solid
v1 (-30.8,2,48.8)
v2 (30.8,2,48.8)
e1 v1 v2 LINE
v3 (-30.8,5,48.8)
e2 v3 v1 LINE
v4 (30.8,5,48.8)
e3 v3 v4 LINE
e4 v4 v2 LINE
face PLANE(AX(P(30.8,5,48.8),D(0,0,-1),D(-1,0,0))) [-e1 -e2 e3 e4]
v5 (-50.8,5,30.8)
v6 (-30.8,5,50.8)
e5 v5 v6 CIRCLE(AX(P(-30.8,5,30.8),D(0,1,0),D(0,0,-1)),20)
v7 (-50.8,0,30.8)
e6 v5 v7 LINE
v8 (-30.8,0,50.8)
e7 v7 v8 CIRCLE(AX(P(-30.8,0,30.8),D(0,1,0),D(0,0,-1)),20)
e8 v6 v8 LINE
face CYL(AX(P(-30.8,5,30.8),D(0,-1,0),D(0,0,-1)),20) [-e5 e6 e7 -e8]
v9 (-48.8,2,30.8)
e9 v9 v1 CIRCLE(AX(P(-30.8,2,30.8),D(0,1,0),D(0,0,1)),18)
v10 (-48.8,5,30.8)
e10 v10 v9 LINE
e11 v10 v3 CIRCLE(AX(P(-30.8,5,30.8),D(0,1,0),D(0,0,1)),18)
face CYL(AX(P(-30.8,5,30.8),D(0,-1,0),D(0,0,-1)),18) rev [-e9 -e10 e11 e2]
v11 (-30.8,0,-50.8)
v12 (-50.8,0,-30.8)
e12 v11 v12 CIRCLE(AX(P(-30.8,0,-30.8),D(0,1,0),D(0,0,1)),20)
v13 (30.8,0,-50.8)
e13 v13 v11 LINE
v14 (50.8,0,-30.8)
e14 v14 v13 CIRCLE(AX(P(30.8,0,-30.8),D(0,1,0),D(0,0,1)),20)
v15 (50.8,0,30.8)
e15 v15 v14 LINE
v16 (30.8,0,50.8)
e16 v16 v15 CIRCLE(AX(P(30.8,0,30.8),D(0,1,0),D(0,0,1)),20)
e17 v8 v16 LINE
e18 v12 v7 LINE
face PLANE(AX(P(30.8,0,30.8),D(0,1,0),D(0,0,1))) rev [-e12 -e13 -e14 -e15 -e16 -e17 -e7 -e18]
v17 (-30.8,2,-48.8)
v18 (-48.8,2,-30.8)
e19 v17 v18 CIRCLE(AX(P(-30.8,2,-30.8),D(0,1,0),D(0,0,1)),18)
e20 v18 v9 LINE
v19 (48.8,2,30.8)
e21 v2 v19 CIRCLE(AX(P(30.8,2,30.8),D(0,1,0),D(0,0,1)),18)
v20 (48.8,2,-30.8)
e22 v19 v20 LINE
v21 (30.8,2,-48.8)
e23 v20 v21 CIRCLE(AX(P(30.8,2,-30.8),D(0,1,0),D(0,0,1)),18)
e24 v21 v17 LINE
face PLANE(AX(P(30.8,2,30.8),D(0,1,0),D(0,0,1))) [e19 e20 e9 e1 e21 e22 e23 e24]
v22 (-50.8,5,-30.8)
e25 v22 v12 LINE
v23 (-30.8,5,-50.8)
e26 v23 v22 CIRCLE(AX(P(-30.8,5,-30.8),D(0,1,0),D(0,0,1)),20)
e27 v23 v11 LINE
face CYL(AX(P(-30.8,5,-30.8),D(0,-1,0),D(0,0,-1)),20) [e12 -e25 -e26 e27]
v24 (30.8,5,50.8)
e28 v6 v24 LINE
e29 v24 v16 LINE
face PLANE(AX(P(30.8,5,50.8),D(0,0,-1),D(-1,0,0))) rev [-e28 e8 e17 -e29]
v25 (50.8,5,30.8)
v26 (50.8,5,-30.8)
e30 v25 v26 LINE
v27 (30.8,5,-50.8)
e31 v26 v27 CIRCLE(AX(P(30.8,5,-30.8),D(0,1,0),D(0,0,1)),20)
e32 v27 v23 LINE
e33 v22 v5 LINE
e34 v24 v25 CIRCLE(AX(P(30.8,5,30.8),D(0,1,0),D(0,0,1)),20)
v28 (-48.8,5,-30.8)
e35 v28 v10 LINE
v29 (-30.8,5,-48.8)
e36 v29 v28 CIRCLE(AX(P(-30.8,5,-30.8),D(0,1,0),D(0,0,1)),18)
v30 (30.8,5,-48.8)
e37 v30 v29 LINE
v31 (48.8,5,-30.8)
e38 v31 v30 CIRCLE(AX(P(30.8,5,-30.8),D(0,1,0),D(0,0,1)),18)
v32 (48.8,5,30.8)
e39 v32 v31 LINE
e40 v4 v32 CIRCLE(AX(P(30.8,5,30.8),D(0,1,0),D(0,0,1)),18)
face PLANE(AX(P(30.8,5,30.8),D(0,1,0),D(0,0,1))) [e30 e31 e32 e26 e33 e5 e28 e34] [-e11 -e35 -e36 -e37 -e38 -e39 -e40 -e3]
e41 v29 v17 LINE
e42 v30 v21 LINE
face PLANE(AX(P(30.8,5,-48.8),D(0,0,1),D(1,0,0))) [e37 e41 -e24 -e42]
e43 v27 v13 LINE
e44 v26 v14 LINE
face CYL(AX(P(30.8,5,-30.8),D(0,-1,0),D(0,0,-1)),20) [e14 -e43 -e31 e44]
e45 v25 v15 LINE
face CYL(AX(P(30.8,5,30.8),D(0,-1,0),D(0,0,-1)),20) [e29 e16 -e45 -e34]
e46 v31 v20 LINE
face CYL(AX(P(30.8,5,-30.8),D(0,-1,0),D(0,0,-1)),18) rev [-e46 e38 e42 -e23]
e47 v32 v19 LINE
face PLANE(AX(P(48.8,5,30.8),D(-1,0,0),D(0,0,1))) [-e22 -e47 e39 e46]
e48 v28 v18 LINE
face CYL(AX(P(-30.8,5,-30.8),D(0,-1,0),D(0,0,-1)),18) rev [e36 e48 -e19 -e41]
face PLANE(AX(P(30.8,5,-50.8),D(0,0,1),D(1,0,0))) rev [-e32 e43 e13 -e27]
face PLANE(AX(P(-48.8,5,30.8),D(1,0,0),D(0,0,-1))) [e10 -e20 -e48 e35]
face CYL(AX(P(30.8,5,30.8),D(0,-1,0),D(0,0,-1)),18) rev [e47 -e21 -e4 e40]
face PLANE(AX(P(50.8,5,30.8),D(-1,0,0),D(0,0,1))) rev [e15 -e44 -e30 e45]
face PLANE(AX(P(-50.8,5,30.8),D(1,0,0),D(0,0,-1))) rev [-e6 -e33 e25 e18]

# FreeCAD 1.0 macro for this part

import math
import FreeCAD as App
import Part
import Sketcher

V = App.Vector


def faces_at(feature, points):
    """Names of the faces that lie closest to the given points."""
    faces = feature.Shape.Faces
    near = lambda p: min(range(len(faces)), key=lambda i: faces[i].distToShape(Part.Vertex(*p))[0])
    return sorted({f"Face{near(p) + 1}" for p in points})

doc = App.newDocument("Part")
body = doc.addObject("PartDesign::Body", "Body")

sketch1 = body.newObject("Sketcher::SketchObject", "Sketch")
sketch1.AttachmentSupport = (doc.getObject("XZ_Plane"), [""])
sketch1.MapMode = "FlatFace"
sketch1.addGeometry(Part.LineSegment(V(-31, 51, 0), V(31, 51, 0)), False)
sketch1.addGeometry(Part.ArcOfCircle(Part.Circle(V(31, 31, 0), V(0, 0, 1), 20), math.radians(0), math.radians(90)), False)
sketch1.addGeometry(Part.LineSegment(V(51, 31, 0), V(51, -31, 0)), False)
sketch1.addGeometry(Part.ArcOfCircle(Part.Circle(V(31, -31, 0), V(0, 0, 1), 20), math.radians(-90), math.radians(0)), False)
sketch1.addGeometry(Part.LineSegment(V(31, -51, 0), V(-31, -51, 0)), False)
sketch1.addGeometry(Part.ArcOfCircle(Part.Circle(V(-31, -31, 0), V(0, 0, 1), 20), math.radians(180), math.radians(270)), False)
sketch1.addGeometry(Part.LineSegment(V(-51, -31, 0), V(-51, 31, 0)), False)
sketch1.addGeometry(Part.ArcOfCircle(Part.Circle(V(-31, 31, 0), V(0, 0, 1), 20), math.radians(90), math.radians(180)), False)
sketch1.addConstraint(Sketcher.Constraint("Tangent", 0, 2, 1, 2))
sketch1.addConstraint(Sketcher.Constraint("Tangent", 1, 1, 2, 1))
sketch1.addConstraint(Sketcher.Constraint("Tangent", 2, 2, 3, 2))
sketch1.addConstraint(Sketcher.Constraint("Tangent", 3, 1, 4, 1))
sketch1.addConstraint(Sketcher.Constraint("Tangent", 4, 2, 5, 2))
sketch1.addConstraint(Sketcher.Constraint("Tangent", 5, 1, 6, 1))
sketch1.addConstraint(Sketcher.Constraint("Tangent", 6, 2, 7, 2))
sketch1.addConstraint(Sketcher.Constraint("Tangent", 7, 1, 0, 1))
sketch1.addConstraint(Sketcher.Constraint("Horizontal", 0))
sketch1.addConstraint(Sketcher.Constraint("Vertical", 2))
sketch1.addConstraint(Sketcher.Constraint("Horizontal", 4))
sketch1.addConstraint(Sketcher.Constraint("Vertical", 6))
sketch1.addConstraint(Sketcher.Constraint("Equal", 1, 3))
sketch1.addConstraint(Sketcher.Constraint("Equal", 3, 5))
sketch1.addConstraint(Sketcher.Constraint("Equal", 5, 7))
sketch1.addConstraint(Sketcher.Constraint("Symmetric", 1, 3, 5, 3, -1, 1))
sketch1.addConstraint(Sketcher.Constraint("Equal", 4, 2))
sketch1.addConstraint(Sketcher.Constraint("Radius", 1, 20.0))
sketch1.addConstraint(Sketcher.Constraint("DistanceX", 0, 1, 0, 2, 61.6))
pad1 = body.newObject("PartDesign::Pad", "Pad")
pad1.Profile = sketch1
pad1.Length = 5
pad1.Reversed = True
doc.recompute()

thickness = body.newObject("PartDesign::Thickness", "Thickness")
thickness.Base = (pad1, faces_at(pad1, [(0, 5, 0)]))
thickness.Value = 2
thickness.Reversed = True
thickness.Join = "Intersection"

doc.recompute()
